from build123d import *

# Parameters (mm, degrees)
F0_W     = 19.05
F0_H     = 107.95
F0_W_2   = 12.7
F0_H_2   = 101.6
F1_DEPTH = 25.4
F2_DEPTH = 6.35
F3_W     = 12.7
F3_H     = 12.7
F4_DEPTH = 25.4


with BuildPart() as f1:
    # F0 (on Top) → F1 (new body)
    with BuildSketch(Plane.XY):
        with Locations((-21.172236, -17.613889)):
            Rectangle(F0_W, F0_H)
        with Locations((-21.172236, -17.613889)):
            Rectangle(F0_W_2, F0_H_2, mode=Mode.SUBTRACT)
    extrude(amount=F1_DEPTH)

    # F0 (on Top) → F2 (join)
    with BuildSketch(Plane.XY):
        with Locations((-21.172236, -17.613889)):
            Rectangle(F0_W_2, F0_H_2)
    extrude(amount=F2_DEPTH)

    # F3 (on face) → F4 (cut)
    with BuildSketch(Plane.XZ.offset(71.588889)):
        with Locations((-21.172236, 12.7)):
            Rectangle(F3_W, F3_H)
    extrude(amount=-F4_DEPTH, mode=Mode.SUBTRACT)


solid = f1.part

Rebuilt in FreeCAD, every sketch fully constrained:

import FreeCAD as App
import Part
import Sketcher
from FreeCAD import Vector
Q = App.Units.Quantity

doc = App.newDocument("Part")
params = doc.addObject("Spreadsheet::Sheet", "Params")
for row, (alias, value) in enumerate([
    ("sketch1_height", "4 in"),
    ("sketch1_width", "0.5 in"),
    ("sketch1_width2", "0.75 in"),
    ("sketch1_height2", "4.25 in"),
    ("pad1_length", "1 in"),
    ("sketch2_height", "4 in"),
    ("sketch2_width", "0.5 in"),
    ("pad2_length", "0.25 in"),
    ("sketch3_width", "0.5 in"),
    ("pocket1_length", "1 in"),
], start=1):
    params.set(f"A{row}", alias)
    params.set(f"B{row}", "=" + value)
    params.setAlias(f"B{row}", alias)

body = doc.addObject("PartDesign::Body", "Body")

sketch1 = doc.addObject("Sketcher::SketchObject", "Sketch")
body.addObject(sketch1)
sketch1.AttachmentSupport = (doc.XY_Plane, [""])
sketch1.MapMode = "FlatFace"
sketch1.addGeometry([
    Part.LineSegment(Vector(-31, 36, 0), Vector(-31, -72, 0)),
    Part.LineSegment(Vector(-31, -72, 0), Vector(-12, -72, 0)),
    Part.LineSegment(Vector(-12, -72, 0), Vector(-12, 36, 0)),
    Part.LineSegment(Vector(-12, 36, 0), Vector(-31, 36, 0)),
    Part.LineSegment(Vector(-15, -68, 0), Vector(-28, -68, 0)),
    Part.LineSegment(Vector(-28, -68, 0), Vector(-28, 33, 0)),
    Part.LineSegment(Vector(-28, 33, 0), Vector(-15, 33, 0)),
    Part.LineSegment(Vector(-15, 33, 0), Vector(-15, -68, 0)),
], False)
sketch1.addConstraint([
    Sketcher.Constraint("Coincident", 0, 2, 1, 1),
    Sketcher.Constraint("Coincident", 1, 2, 2, 1),
    Sketcher.Constraint("Coincident", 2, 2, 3, 1),
    Sketcher.Constraint("Coincident", 3, 2, 0, 1),
    Sketcher.Constraint("Coincident", 4, 2, 5, 1),
    Sketcher.Constraint("Coincident", 5, 2, 6, 1),
    Sketcher.Constraint("Coincident", 6, 2, 7, 1),
    Sketcher.Constraint("Coincident", 7, 2, 4, 1),
    Sketcher.Constraint("Vertical", 0),
    Sketcher.Constraint("Horizontal", 1),
    Sketcher.Constraint("Vertical", 2),
    Sketcher.Constraint("Horizontal", 3),
    Sketcher.Constraint("Horizontal", 4),
    Sketcher.Constraint("Vertical", 5),
    Sketcher.Constraint("Horizontal", 6),
    Sketcher.Constraint("Vertical", 7),
    Sketcher.Constraint("DistanceY", 5, 1, 5, 2, Q("4 in")),
    Sketcher.Constraint("DistanceX", 4, 2, 4, 1, Q("0.5 in")),
    Sketcher.Constraint("DistanceX", 1, 1, 1, 2, Q("0.75 in")),
    Sketcher.Constraint("DistanceY", 0, 2, 0, 1, Q("4.25 in")),
    Sketcher.Constraint("DistanceX", 0, 2, 4, 2, Q("0.125 in")),
    Sketcher.Constraint("DistanceY", 0, 2, 4, 2, Q("0.125 in")),
    Sketcher.Constraint("DistanceY", 0, 2, -1, 1, Q("71.588889 mm")),
    Sketcher.Constraint("DistanceX", 0, 2, -1, 1, Q("30.697236 mm")),
])
sketch1.setExpression("Constraints[16]", "Params.sketch1_height")
sketch1.setExpression("Constraints[17]", "Params.sketch1_width")
sketch1.setExpression("Constraints[18]", "Params.sketch1_width2")
sketch1.setExpression("Constraints[19]", "Params.sketch1_height2")
pad1 = doc.addObject("PartDesign::Pad", "Pad")
body.addObject(pad1)
pad1.Profile = sketch1
pad1.setExpression("Length", "Params.pad1_length")

sketch2 = doc.addObject("Sketcher::SketchObject", "Sketch001")
body.addObject(sketch2)
sketch2.AttachmentSupport = (doc.XY_Plane, [""])
sketch2.MapMode = "FlatFace"
sketch2.addGeometry([
    Part.LineSegment(Vector(-28, 33, 0), Vector(-28, -68, 0)),
    Part.LineSegment(Vector(-28, -68, 0), Vector(-15, -68, 0)),
    Part.LineSegment(Vector(-15, -68, 0), Vector(-15, 33, 0)),
    Part.LineSegment(Vector(-15, 33, 0), Vector(-28, 33, 0)),
], False)
sketch2.addConstraint([
    Sketcher.Constraint("Coincident", 0, 2, 1, 1),
    Sketcher.Constraint("Coincident", 1, 2, 2, 1),
    Sketcher.Constraint("Coincident", 2, 2, 3, 1),
    Sketcher.Constraint("Coincident", 3, 2, 0, 1),
    Sketcher.Constraint("Vertical", 0),
    Sketcher.Constraint("Horizontal", 1),
    Sketcher.Constraint("Vertical", 2),
    Sketcher.Constraint("Horizontal", 3),
    Sketcher.Constraint("DistanceY", 0, 2, 0, 1, Q("4 in")),
    Sketcher.Constraint("DistanceX", 1, 1, 1, 2, Q("0.5 in")),
    Sketcher.Constraint("DistanceY", 0, 2, -1, 1, Q("68.413889 mm")),
    Sketcher.Constraint("DistanceX", 0, 2, -1, 1, Q("27.522236 mm")),
])
sketch2.setExpression("Constraints[8]", "Params.sketch2_height")
sketch2.setExpression("Constraints[9]", "Params.sketch2_width")
pad2 = doc.addObject("PartDesign::Pad", "Pad001")
body.addObject(pad2)
pad2.Profile = sketch2
pad2.setExpression("Length", "Params.pad2_length")

sketch3 = doc.addObject("Sketcher::SketchObject", "Sketch002")
body.addObject(sketch3)
sketch3.AttachmentSupport = (doc.XZ_Plane, [""])
sketch3.MapMode = "FlatFace"
sketch3.AttachmentOffset = App.Placement(Vector(0, 0, 71.588889), App.Rotation())
sketch3.addGeometry([
    Part.LineSegment(Vector(-28, 19, 0), Vector(-28, 6, 0)),
    Part.LineSegment(Vector(-28, 6, 0), Vector(-15, 6, 0)),
    Part.LineSegment(Vector(-15, 6, 0), Vector(-15, 19, 0)),
    Part.LineSegment(Vector(-15, 19, 0), Vector(-28, 19, 0)),
], False)
sketch3.addConstraint([
    Sketcher.Constraint("Coincident", 0, 2, 1, 1),
    Sketcher.Constraint("Coincident", 1, 2, 2, 1),
    Sketcher.Constraint("Coincident", 2, 2, 3, 1),
    Sketcher.Constraint("Coincident", 3, 2, 0, 1),
    Sketcher.Constraint("Vertical", 0),
    Sketcher.Constraint("Horizontal", 1),
    Sketcher.Constraint("Vertical", 2),
    Sketcher.Constraint("Horizontal", 3),
    Sketcher.Constraint("Equal", 3, 0),
    Sketcher.Constraint("DistanceX", 1, 1, 1, 2, Q("0.5 in")),
    Sketcher.Constraint("DistanceY", -1, 1, 0, 2, Q("0.25 in")),
    Sketcher.Constraint("DistanceX", 0, 2, -1, 1, Q("27.522236 mm")),
])
sketch3.setExpression("Constraints[9]", "Params.sketch3_width")
pocket1 = doc.addObject("PartDesign::Pocket", "Pocket")
body.addObject(pocket1)
pocket1.Profile = sketch3
pocket1.setExpression("Length", "Params.pocket1_length")

doc.recompute()
